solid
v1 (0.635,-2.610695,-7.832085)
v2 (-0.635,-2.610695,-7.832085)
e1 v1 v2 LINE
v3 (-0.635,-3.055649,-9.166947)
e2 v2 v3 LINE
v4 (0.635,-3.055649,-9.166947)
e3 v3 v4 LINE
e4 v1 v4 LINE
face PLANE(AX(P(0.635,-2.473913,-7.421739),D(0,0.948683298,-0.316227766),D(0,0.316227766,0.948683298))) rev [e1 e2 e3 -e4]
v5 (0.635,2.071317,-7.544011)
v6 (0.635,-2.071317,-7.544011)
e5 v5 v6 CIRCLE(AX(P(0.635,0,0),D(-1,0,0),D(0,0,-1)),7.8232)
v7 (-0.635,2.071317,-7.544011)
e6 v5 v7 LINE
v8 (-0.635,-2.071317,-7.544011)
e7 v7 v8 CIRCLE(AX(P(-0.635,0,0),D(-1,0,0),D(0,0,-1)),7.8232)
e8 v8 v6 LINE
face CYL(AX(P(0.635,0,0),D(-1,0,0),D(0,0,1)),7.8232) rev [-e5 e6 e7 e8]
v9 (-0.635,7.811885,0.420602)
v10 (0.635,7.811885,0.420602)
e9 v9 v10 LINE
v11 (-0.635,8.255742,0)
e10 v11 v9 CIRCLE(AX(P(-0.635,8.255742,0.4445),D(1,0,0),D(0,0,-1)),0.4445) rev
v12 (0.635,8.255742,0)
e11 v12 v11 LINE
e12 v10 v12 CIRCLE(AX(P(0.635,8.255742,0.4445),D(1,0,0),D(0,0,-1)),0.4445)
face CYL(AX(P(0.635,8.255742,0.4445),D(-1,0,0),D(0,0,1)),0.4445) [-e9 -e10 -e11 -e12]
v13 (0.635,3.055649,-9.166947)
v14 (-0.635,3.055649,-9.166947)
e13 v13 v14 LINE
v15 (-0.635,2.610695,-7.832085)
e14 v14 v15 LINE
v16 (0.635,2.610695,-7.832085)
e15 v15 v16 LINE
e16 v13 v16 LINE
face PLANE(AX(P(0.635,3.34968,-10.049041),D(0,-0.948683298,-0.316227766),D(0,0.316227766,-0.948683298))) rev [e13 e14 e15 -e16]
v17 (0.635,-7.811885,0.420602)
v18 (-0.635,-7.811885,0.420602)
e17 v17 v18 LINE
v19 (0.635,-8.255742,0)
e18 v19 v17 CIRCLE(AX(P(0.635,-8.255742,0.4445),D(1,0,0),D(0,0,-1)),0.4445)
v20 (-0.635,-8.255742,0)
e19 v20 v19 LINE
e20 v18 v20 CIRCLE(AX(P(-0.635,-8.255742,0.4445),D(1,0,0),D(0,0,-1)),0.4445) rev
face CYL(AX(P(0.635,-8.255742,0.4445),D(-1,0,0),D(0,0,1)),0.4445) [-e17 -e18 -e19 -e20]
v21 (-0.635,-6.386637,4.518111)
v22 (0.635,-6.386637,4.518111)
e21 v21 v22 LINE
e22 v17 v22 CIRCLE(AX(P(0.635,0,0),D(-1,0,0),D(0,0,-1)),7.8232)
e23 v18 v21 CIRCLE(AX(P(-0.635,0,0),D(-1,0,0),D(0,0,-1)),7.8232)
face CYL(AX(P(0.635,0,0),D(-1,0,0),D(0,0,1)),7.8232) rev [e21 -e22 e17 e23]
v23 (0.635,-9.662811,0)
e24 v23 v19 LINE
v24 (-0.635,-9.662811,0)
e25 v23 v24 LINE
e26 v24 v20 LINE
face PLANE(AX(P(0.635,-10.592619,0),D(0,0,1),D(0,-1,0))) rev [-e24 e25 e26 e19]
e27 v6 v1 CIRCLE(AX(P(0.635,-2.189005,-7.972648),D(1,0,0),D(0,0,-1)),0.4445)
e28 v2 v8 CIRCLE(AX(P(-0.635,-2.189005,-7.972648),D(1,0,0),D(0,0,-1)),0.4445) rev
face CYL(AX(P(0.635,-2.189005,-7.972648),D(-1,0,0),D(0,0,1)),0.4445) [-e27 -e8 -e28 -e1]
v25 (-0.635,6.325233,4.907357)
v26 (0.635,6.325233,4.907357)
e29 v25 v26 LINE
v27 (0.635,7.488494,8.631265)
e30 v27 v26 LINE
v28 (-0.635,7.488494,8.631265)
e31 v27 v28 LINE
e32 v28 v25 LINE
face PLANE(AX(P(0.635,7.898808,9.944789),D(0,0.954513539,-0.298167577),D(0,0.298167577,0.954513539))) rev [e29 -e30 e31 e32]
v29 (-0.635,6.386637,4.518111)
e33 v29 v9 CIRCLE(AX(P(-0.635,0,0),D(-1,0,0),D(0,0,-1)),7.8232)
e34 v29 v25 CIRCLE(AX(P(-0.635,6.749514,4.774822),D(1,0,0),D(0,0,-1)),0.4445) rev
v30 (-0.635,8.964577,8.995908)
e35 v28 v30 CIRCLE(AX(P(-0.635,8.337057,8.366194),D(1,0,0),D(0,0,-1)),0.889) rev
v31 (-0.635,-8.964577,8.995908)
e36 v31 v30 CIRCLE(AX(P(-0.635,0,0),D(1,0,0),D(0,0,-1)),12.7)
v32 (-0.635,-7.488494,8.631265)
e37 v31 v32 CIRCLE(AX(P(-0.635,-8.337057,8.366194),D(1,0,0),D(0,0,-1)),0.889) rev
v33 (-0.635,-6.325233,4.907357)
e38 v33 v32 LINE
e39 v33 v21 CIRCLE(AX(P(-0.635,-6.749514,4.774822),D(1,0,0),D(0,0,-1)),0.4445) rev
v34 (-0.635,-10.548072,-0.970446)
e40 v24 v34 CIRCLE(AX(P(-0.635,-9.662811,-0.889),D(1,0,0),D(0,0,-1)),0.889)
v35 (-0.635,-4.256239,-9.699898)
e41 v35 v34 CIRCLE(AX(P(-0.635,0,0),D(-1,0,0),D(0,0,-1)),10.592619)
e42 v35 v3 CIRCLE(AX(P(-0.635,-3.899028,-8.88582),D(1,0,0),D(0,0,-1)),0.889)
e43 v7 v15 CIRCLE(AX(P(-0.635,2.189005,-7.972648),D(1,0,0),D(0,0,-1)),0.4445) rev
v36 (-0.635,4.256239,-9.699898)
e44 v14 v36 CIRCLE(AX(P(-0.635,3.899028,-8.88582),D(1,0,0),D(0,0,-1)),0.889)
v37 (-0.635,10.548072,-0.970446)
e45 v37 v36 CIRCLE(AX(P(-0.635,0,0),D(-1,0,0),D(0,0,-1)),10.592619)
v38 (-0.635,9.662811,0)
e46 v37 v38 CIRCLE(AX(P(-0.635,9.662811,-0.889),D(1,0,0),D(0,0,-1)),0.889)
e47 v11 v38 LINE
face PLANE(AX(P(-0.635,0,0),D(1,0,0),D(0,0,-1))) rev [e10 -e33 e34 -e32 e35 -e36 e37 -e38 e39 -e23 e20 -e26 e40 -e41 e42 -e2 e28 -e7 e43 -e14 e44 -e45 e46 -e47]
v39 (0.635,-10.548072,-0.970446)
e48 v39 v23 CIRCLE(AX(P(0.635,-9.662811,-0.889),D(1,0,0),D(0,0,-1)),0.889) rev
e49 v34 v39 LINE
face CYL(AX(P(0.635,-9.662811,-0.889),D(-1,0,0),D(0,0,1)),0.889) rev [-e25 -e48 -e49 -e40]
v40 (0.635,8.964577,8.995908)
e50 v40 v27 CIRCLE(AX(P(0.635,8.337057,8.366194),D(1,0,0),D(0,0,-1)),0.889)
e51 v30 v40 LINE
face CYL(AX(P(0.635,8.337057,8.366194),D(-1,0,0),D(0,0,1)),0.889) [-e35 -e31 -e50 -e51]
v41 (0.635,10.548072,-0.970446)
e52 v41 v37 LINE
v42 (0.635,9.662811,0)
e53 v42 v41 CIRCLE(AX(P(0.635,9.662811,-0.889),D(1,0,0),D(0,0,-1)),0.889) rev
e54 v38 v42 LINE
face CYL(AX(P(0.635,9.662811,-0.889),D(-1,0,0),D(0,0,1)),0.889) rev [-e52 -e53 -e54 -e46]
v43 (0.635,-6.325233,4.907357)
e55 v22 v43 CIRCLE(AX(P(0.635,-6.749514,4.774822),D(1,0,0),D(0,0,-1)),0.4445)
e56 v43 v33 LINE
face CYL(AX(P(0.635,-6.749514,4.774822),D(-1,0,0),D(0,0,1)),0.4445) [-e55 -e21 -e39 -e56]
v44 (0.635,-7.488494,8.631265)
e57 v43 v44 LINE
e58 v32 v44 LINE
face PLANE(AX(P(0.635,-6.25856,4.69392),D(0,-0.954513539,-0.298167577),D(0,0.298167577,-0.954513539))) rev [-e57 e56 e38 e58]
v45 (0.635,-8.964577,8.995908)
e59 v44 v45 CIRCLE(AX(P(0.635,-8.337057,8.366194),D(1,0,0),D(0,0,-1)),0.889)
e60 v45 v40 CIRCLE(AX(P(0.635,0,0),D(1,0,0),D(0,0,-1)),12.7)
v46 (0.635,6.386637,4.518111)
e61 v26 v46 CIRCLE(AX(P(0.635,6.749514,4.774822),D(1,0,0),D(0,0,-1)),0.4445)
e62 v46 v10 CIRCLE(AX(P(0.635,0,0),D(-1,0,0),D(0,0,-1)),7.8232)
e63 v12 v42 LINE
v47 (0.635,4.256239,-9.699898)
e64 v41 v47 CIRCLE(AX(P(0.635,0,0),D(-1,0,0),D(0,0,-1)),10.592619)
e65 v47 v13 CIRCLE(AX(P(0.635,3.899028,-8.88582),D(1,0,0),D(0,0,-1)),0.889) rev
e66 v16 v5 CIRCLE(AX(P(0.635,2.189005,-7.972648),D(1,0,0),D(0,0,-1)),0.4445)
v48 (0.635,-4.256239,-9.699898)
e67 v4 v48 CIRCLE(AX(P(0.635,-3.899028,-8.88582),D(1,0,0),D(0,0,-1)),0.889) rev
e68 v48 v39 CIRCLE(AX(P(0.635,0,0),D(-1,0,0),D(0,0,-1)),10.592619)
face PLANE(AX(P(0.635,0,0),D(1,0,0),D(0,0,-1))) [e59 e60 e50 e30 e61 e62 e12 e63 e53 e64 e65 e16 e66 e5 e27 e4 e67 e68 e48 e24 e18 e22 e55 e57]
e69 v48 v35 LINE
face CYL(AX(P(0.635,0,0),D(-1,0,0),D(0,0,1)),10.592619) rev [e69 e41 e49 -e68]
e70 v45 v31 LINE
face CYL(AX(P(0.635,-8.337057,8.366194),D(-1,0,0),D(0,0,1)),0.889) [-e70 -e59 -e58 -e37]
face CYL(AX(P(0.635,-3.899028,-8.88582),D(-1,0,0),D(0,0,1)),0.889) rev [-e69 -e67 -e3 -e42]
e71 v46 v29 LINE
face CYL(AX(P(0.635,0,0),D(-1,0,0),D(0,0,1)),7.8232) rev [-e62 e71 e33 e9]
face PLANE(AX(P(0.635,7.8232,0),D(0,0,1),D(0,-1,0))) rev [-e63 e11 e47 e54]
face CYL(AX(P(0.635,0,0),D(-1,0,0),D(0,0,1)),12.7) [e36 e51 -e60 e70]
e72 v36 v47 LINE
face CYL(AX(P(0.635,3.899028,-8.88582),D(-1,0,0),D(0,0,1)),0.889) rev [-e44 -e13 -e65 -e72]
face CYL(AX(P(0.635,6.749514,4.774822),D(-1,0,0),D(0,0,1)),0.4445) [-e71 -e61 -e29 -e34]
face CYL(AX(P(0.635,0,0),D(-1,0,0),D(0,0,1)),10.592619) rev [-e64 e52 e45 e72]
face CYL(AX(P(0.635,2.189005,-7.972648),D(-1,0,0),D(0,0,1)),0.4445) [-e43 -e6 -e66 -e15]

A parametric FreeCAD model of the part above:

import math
import FreeCAD as App
import Part
import Sketcher

V = App.Vector
Q = App.Units.Quantity


def edges_at(feature, points):
    """Names of the edges that pass closest to the given points."""
    edges = feature.Shape.Edges
    near = lambda p: min(range(len(edges)), key=lambda i: edges[i].distToShape(Part.Vertex(*p))[0])
    return sorted({f"Edge{near(p) + 1}" for p in points})

doc = App.newDocument("Part")
body = doc.addObject("PartDesign::Body", "Body")

# Sketch on YZ plane
sketch1 = doc.addObject("Sketcher::SketchObject", "Sketch")
body.addObject(sketch1)
sketch1.AttachmentSupport = (doc.YZ_Plane, [""])
sketch1.MapMode = "FlatFace"
sketch1.addGeometry([
    Part.LineSegment(V(-2.473913, -7.421739, 0), V(-3.34968, -10.049041, 0)),  # 0
    Part.ArcOfCircle(Part.Circle(V(0, 0, 0), V(0, 0, 1), 10.592619), math.radians(-180), math.radians(-108.434949)),  # 1
    Part.LineSegment(V(-10.592619, 0, 0), V(-7.8232, 0, 0)),  # 2
    Part.ArcOfCircle(Part.Circle(V(0, 0, 0), V(0, 0, 1), 7.8232), math.radians(143.130102), math.radians(180)),  # 3
    Part.LineSegment(V(-6.25856, 4.69392, 0), V(-7.898808, 9.944789, 0)),  # 4
    Part.ArcOfCircle(Part.Circle(V(0, 0, 0), V(0, 0, 1), 12.7), math.radians(128.458922), math.radians(411.541078)),  # 5
    Part.LineSegment(V(7.898808, 9.944789, 0), V(6.25856, 4.69392, 0)),  # 6
    Part.ArcOfCircle(Part.Circle(V(0, 0, 0), V(0, 0, 1), 7.8232), math.radians(0), math.radians(36.869898)),  # 7
    Part.LineSegment(V(7.8232, 0, 0), V(10.592619, 0, 0)),  # 8
    Part.ArcOfCircle(Part.Circle(V(0, 0, 0), V(0, 0, 1), 10.592619), math.radians(-71.565051), math.radians(0)),  # 9
    Part.LineSegment(V(3.34968, -10.049041, 0), V(2.473913, -7.421739, 0)),  # 10
    Part.ArcOfCircle(Part.Circle(V(0, 0, 0), V(0, 0, 1), 7.8232), math.radians(-108.434949), math.radians(-71.565051)),  # 11
], False)
sketch1.addConstraint([
    Sketcher.Constraint("Coincident", 0, 2, 1, 2),
    Sketcher.Constraint("Coincident", 1, 1, 2, 1),
    Sketcher.Constraint("Coincident", 2, 2, 3, 2),
    Sketcher.Constraint("Coincident", 3, 1, 4, 1),
    Sketcher.Constraint("Coincident", 4, 2, 5, 1),
    Sketcher.Constraint("Coincident", 5, 2, 6, 1),
    Sketcher.Constraint("Coincident", 6, 2, 7, 2),
    Sketcher.Constraint("Coincident", 7, 1, 8, 1),
    Sketcher.Constraint("Coincident", 8, 2, 9, 2),
    Sketcher.Constraint("Coincident", 9, 1, 10, 1),
    Sketcher.Constraint("Coincident", 10, 2, 11, 2),
    Sketcher.Constraint("Coincident", 11, 1, 0, 1),
    Sketcher.Constraint("Horizontal", 2),
    Sketcher.Constraint("Horizontal", 8),
    Sketcher.Constraint("Coincident", 1, 3, -1, 1),
    Sketcher.Constraint("Coincident", 3, 3, -1, 1),
    Sketcher.Constraint("Coincident", 5, 3, -1, 1),
    Sketcher.Constraint("Coincident", 7, 3, -1, 1),
    Sketcher.Constraint("Coincident", 9, 3, -1, 1),
    Sketcher.Constraint("Coincident", 11, 3, -1, 1),
    Sketcher.Constraint("Equal", 3, 7),
    Sketcher.Constraint("Equal", 1, 9),
    Sketcher.Constraint("Equal", 7, 11),
    Sketcher.Constraint("PointOnObject", 1, 1, -1),
    Sketcher.Constraint("PointOnObject", 7, 1, -1),
    Sketcher.Constraint("Horizontal", 4, 2, 5, 2),
    Sketcher.Constraint("Horizontal", 3, 1, 6, 2),
    Sketcher.Constraint("Horizontal", 0, 2, 9, 1),
    Sketcher.Constraint("Horizontal", 10, 2, 11, 1),
    Sketcher.Constraint("Radius", 5, Q("0.5 in")),
    Sketcher.Constraint("Radius", 3, Q("0.308 in")),
    Sketcher.Constraint("Radius", 1, Q("10.592619 mm")),
    Sketcher.Constraint("DistanceX", 3, 1, -1, 1, Q("0.2464 in")),
    Sketcher.Constraint("DistanceY", 9, 1, 10, 2, Q("2.627302 mm")),
    Sketcher.Constraint("DistanceX", 0, 2, -1, 1, Q("3.34968 mm")),
    Sketcher.Constraint("DistanceX", 4, 2, -1, 1, Q("7.898808 mm")),
])
pad1 = doc.addObject("PartDesign::Pad", "Pad")
body.addObject(pad1)
pad1.Profile = sketch1
pad1.Type = "TwoLengths"
pad1.Length = Q("0.025 in")
pad1.Length2 = Q("0.025 in")
doc.recompute()

fillet = doc.addObject("PartDesign::Fillet", "Fillet")
body.addObject(fillet)
fillet.Base = (pad1, edges_at(pad1, [
    (0, 3.35, -10.049),
    (0, 10.593, 0),
    (0, 7.899, 9.945),
    (0, -7.899, 9.945),
    (0, -10.593, 0),
    (0, -3.35, -10.049),
]))
fillet.Radius = Q("0.035 in")
doc.recompute()

fillet2 = doc.addObject("PartDesign::Fillet", "Fillet001")
body.addObject(fillet2)
fillet2.Base = (fillet, edges_at(fillet, [
    (0, 2.474, -7.422),
    (0, 7.823, 0),
    (0, 6.259, 4.694),
    (0, -6.259, 4.694),
    (0, -7.823, 0),
    (0, -2.474, -7.422),
]))
fillet2.Radius = Q("0.0175 in")

doc.recompute()
